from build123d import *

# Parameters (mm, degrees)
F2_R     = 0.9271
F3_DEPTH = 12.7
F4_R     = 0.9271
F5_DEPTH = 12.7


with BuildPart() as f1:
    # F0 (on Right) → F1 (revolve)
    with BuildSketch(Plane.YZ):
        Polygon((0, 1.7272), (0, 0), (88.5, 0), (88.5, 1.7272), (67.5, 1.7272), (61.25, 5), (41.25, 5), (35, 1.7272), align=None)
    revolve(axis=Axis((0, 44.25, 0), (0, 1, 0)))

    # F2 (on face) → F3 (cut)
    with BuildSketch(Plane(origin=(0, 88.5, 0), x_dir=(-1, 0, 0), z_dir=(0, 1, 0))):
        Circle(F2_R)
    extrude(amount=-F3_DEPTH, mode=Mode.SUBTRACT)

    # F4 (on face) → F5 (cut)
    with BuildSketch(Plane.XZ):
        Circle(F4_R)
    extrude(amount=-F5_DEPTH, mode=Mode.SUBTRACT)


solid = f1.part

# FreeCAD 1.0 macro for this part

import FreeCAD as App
import Part
import Sketcher
Q = App.Units.Quantity


def add_polygon(sketch, points):
    """Adds a closed chain of lines whose ends are joined by coincident constraints."""
    first, n = sketch.GeometryCount, len(points)
    for a, b in zip(points, points[1:] + points[:1]):
        sketch.addGeometry(Part.LineSegment(App.Vector(*a, 0), App.Vector(*b, 0)), False)
    for i in range(n):
        sketch.addConstraint(Sketcher.Constraint("Coincident", first + i, 2, first + (i + 1) % n, 1))

doc = App.newDocument("Part")
params = doc.addObject("Spreadsheet::Sheet", "Params")
for row, (alias, value) in enumerate([
    ("sketch1_width", "21 mm"),
    ("sketch1_width2", "20 mm"),
    ("sketch1_width3", "35 mm"),
    ("sketch1_width4", "88.5 mm"),
    ("revolution_angle", "360 deg"),
    ("pocket1_length", "12.7 mm"),
    ("pocket2_length", "12.7 mm"),
], start=1):
    params.set(f"A{row}", alias)
    params.set(f"B{row}", "=" + value)
    params.setAlias(f"B{row}", alias)

body = doc.addObject("PartDesign::Body", "Body")

sketch1 = doc.addObject("Sketcher::SketchObject", "Sketch")
body.addObject(sketch1)
sketch1.AttachmentSupport = (doc.YZ_Plane, [""])
sketch1.MapMode = "FlatFace"
add_polygon(sketch1, [(0, 1.7), (0, 0), (88.5, 0), (88.5, 1.7), (67.5, 1.7), (61.2, 5), (41.2, 5), (35, 1.7)])
sketch1.addConstraint([
    Sketcher.Constraint("Vertical", 0),
    Sketcher.Constraint("Horizontal", 1),
    Sketcher.Constraint("Vertical", 2),
    Sketcher.Constraint("Horizontal", 3),
    Sketcher.Constraint("Horizontal", 5),
    Sketcher.Constraint("Horizontal", 7),
    Sketcher.Constraint("Coincident", 0, 2, -1, 1),
    Sketcher.Constraint("Horizontal", 3, 2, 6, 2),
    Sketcher.Constraint("Equal", 4, 6),
    Sketcher.Constraint("DistanceX", 3, 2, 3, 1, Q("21 mm")),
    Sketcher.Constraint("DistanceX", 5, 2, 5, 1, Q("20 mm")),
    Sketcher.Constraint("DistanceX", 7, 2, 7, 1, Q("35 mm")),
    Sketcher.Constraint("DistanceX", 1, 1, 1, 2, Q("88.5 mm")),
    Sketcher.Constraint("DistanceY", -1, 1, 4, 2, Q("5 mm")),
    Sketcher.Constraint("DistanceY", 0, 2, 0, 1, Q("1.7272 mm")),
])
sketch1.setExpression("Constraints[17]", "Params.sketch1_width")
sketch1.setExpression("Constraints[18]", "Params.sketch1_width2")
sketch1.setExpression("Constraints[19]", "Params.sketch1_width3")
sketch1.setExpression("Constraints[20]", "Params.sketch1_width4")
revolution = doc.addObject("PartDesign::Revolution", "Revolution")
body.addObject(revolution)
revolution.Profile = sketch1
revolution.ReferenceAxis = (sketch1, ["H_Axis"])
revolution.setExpression("Angle", "Params.revolution_angle")

sketch2 = doc.addObject("Sketcher::SketchObject", "Sketch001")
body.addObject(sketch2)
sketch2.AttachmentSupport = (doc.XZ_Plane, [""])
sketch2.MapMode = "FlatFace"
sketch2.AttachmentOffset = App.Placement(App.Vector(0, 0, -88.5), App.Rotation())
sketch2.addGeometry(Part.Circle(App.Vector(0, 0, 0), App.Vector(0, 0, 1), 0.9), False)
sketch2.addConstraint([
    Sketcher.Constraint("Coincident", 0, 3, -1, 1),
    Sketcher.Constraint("Diameter", 0, Q("1.8542 mm")),
])
pocket1 = doc.addObject("PartDesign::Pocket", "Pocket")
body.addObject(pocket1)
pocket1.Profile = sketch2
pocket1.setExpression("Length", "Params.pocket1_length")
pocket1.Reversed = True

sketch3 = doc.addObject("Sketcher::SketchObject", "Sketch002")
body.addObject(sketch3)
sketch3.AttachmentSupport = (doc.XZ_Plane, [""])
sketch3.MapMode = "FlatFace"
sketch3.addGeometry(Part.Circle(App.Vector(0, 0, 0), App.Vector(0, 0, 1), 0.9), False)
sketch3.addConstraint([
    Sketcher.Constraint("Coincident", 0, 3, -1, 1),
    Sketcher.Constraint("Diameter", 0, Q("1.8542 mm")),
])
pocket2 = doc.addObject("PartDesign::Pocket", "Pocket001")
body.addObject(pocket2)
pocket2.Profile = sketch3
pocket2.setExpression("Length", "Params.pocket2_length")

doc.recompute()
